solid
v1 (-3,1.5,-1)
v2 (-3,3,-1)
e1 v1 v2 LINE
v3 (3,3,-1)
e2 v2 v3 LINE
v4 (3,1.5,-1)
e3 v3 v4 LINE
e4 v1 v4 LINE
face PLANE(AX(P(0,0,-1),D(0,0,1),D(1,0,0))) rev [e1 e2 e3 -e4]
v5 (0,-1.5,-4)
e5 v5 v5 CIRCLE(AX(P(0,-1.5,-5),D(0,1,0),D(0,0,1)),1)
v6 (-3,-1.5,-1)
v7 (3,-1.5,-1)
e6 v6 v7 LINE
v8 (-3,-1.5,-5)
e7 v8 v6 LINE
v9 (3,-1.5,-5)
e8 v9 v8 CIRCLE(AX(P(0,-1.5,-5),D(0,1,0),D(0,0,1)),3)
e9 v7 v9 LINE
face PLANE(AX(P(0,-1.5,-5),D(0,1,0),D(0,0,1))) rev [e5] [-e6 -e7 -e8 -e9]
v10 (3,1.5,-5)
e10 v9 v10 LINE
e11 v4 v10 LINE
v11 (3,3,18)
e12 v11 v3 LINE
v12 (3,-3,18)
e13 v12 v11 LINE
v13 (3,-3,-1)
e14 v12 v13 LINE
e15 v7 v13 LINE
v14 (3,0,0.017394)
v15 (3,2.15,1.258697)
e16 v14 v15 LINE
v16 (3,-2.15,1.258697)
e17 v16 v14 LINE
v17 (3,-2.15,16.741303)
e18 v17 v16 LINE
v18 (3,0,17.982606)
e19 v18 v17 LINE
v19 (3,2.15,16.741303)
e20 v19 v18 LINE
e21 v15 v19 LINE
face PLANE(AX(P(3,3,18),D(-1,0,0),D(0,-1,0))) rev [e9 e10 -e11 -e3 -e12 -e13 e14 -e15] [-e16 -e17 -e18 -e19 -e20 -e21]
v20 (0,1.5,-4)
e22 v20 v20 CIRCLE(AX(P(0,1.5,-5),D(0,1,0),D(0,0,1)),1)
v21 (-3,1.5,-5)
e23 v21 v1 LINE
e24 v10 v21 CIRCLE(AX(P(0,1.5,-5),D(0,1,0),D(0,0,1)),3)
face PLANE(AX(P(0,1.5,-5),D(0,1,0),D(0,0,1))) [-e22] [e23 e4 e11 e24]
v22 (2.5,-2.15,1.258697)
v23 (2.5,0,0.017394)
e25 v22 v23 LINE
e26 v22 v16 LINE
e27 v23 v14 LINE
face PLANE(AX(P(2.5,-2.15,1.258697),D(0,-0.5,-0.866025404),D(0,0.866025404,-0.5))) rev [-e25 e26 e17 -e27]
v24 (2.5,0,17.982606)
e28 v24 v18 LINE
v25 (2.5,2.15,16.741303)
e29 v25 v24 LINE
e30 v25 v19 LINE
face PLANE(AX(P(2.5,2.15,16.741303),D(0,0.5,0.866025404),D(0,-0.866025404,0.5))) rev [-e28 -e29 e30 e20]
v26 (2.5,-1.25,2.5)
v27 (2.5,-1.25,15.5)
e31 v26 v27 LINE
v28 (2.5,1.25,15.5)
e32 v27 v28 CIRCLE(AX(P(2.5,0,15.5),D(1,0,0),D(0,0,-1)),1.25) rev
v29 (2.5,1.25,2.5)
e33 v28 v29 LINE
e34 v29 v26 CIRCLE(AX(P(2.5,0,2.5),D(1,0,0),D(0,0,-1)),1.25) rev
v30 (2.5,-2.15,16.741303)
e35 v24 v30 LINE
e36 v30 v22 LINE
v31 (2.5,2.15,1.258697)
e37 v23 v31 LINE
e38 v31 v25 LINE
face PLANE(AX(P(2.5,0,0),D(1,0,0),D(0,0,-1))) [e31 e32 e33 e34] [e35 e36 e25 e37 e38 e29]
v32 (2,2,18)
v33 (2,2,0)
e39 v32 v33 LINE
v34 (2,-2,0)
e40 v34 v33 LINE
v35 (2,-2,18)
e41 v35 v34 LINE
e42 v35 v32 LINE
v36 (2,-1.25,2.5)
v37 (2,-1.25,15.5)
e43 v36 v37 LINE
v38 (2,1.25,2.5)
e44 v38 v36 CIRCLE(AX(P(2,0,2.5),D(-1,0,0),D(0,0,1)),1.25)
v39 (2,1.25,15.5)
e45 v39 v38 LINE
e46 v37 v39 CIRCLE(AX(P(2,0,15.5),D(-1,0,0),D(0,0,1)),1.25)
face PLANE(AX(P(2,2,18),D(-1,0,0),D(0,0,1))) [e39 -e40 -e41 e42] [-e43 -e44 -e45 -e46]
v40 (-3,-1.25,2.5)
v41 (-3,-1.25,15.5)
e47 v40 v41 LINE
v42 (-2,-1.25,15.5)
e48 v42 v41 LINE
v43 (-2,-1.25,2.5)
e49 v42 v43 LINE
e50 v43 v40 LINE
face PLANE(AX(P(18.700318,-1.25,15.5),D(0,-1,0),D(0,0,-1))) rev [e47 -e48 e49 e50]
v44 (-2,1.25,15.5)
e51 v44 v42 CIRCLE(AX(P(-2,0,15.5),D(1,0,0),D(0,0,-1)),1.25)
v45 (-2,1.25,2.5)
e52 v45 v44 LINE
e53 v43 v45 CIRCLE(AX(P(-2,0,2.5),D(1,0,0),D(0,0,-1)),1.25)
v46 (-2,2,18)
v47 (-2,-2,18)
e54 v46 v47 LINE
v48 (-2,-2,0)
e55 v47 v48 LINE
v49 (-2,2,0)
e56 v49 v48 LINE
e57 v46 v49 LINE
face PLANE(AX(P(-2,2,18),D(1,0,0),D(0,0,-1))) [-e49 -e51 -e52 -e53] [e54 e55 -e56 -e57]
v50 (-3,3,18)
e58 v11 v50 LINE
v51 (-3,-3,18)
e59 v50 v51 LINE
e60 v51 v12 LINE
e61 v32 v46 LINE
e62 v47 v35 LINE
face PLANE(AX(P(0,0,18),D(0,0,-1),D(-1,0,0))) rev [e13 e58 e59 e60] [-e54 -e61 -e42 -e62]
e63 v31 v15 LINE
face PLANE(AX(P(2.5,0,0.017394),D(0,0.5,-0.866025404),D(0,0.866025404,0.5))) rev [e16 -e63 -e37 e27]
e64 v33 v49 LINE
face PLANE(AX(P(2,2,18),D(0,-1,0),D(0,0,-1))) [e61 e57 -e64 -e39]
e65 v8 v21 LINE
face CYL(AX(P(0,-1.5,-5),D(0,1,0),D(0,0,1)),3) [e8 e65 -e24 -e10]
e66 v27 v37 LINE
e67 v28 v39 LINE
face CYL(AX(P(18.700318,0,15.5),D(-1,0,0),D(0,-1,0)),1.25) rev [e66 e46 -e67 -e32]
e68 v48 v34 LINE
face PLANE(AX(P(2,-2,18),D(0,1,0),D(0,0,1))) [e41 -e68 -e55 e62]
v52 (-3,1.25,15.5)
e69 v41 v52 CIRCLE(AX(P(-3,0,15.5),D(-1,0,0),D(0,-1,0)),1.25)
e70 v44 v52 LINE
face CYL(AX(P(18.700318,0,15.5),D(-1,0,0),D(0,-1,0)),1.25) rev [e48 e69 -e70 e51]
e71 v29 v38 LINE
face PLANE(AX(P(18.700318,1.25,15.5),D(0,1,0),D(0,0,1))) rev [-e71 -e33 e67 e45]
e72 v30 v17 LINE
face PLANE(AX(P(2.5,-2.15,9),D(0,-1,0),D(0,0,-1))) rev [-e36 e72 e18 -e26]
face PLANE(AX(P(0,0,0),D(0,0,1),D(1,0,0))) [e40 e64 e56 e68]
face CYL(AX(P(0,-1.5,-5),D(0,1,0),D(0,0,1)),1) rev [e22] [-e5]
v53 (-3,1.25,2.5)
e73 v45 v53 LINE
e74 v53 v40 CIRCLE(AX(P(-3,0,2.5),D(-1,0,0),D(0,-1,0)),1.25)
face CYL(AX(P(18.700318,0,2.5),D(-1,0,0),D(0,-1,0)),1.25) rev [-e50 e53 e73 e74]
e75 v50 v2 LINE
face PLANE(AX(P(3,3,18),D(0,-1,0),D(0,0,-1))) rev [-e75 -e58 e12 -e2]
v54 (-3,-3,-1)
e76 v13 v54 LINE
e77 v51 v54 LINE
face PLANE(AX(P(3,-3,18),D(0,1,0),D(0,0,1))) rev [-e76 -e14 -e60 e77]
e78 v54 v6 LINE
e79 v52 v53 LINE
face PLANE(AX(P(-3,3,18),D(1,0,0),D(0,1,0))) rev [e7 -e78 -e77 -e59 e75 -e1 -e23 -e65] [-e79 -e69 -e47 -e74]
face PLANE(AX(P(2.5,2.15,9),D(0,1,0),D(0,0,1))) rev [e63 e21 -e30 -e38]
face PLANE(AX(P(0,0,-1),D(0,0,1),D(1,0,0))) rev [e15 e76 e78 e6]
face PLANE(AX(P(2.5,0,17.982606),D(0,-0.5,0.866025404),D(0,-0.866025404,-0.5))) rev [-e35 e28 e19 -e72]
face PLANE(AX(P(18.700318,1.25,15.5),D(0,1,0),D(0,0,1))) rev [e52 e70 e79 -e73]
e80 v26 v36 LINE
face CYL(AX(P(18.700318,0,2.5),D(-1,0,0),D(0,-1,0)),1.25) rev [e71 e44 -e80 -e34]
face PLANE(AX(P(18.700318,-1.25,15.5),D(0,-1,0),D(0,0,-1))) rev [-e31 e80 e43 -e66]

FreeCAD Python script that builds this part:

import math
import FreeCAD as App
import Part
import Sketcher
Q = App.Units.Quantity

doc = App.newDocument("Part")
body = doc.addObject("PartDesign::Body", "Body")

sketch1 = doc.addObject("Sketcher::SketchObject", "Sketch")
body.addObject(sketch1)
sketch1.AttachmentSupport = (doc.XY_Plane, [""])
sketch1.MapMode = "FlatFace"
sketch1.addGeometry([
    Part.LineSegment(App.Vector(-3, 3, 0), App.Vector(-3, -3, 0)),
    Part.LineSegment(App.Vector(-3, -3, 0), App.Vector(3, -3, 0)),
    Part.LineSegment(App.Vector(3, -3, 0), App.Vector(3, 3, 0)),
    Part.LineSegment(App.Vector(3, 3, 0), App.Vector(-3, 3, 0)),
    Part.LineSegment(App.Vector(2, -2, 0), App.Vector(-2, -2, 0)),
    Part.LineSegment(App.Vector(-2, -2, 0), App.Vector(-2, 2, 0)),
    Part.LineSegment(App.Vector(-2, 2, 0), App.Vector(2, 2, 0)),
    Part.LineSegment(App.Vector(2, 2, 0), App.Vector(2, -2, 0)),
], False)
sketch1.addConstraint([
    Sketcher.Constraint("Coincident", 0, 2, 1, 1),
    Sketcher.Constraint("Coincident", 1, 2, 2, 1),
    Sketcher.Constraint("Coincident", 2, 2, 3, 1),
    Sketcher.Constraint("Coincident", 3, 2, 0, 1),
    Sketcher.Constraint("Coincident", 4, 2, 5, 1),
    Sketcher.Constraint("Coincident", 5, 2, 6, 1),
    Sketcher.Constraint("Coincident", 6, 2, 7, 1),
    Sketcher.Constraint("Coincident", 7, 2, 4, 1),
    Sketcher.Constraint("Vertical", 0),
    Sketcher.Constraint("Horizontal", 1),
    Sketcher.Constraint("Vertical", 2),
    Sketcher.Constraint("Horizontal", 3),
    Sketcher.Constraint("Horizontal", 4),
    Sketcher.Constraint("Vertical", 5),
    Sketcher.Constraint("Horizontal", 6),
    Sketcher.Constraint("Vertical", 7),
    Sketcher.Constraint("Symmetric", 0, 2, 2, 2, -1, 1),
    Sketcher.Constraint("Symmetric", 4, 2, 6, 2, -1, 1),
    Sketcher.Constraint("Equal", 3, 0),
    Sketcher.Constraint("Equal", 6, 5),
    Sketcher.Constraint("DistanceX", 1, 1, 1, 2, Q("6 mm")),
    Sketcher.Constraint("DistanceX", 4, 2, 4, 1, Q("4 mm")),
])
pad1 = doc.addObject("PartDesign::Pad", "Pad")
body.addObject(pad1)
pad1.Profile = sketch1
pad1.Length = 18

sketch2 = doc.addObject("Sketcher::SketchObject", "Sketch001")
body.addObject(sketch2)
sketch2.AttachmentSupport = (doc.XY_Plane, [""])
sketch2.MapMode = "FlatFace"
sketch2.addGeometry([
    Part.LineSegment(App.Vector(3, 3, 0), App.Vector(3, -3, 0)),
    Part.LineSegment(App.Vector(3, -3, 0), App.Vector(-3, -3, 0)),
    Part.LineSegment(App.Vector(-3, -3, 0), App.Vector(-3, 3, 0)),
    Part.LineSegment(App.Vector(-3, 3, 0), App.Vector(3, 3, 0)),
], False)
sketch2.addConstraint([
    Sketcher.Constraint("Coincident", 0, 2, 1, 1),
    Sketcher.Constraint("Coincident", 1, 2, 2, 1),
    Sketcher.Constraint("Coincident", 2, 2, 3, 1),
    Sketcher.Constraint("Coincident", 3, 2, 0, 1),
    Sketcher.Constraint("Vertical", 0),
    Sketcher.Constraint("Horizontal", 1),
    Sketcher.Constraint("Vertical", 2),
    Sketcher.Constraint("Horizontal", 3),
    Sketcher.Constraint("Symmetric", 0, 2, 2, 2, -1, 1),
    Sketcher.Constraint("Equal", 3, 0),
    Sketcher.Constraint("DistanceX", 1, 2, 1, 1, Q("6 mm")),
])
pad2 = doc.addObject("PartDesign::Pad", "Pad001")
body.addObject(pad2)
pad2.Profile = sketch2
pad2.Length = 1
pad2.Reversed = True

sketch3 = doc.addObject("Sketcher::SketchObject", "Sketch002")
body.addObject(sketch3)
sketch3.AttachmentSupport = (doc.XZ_Plane, [""])
sketch3.MapMode = "FlatFace"
sketch3.addGeometry([
    Part.LineSegment(App.Vector(3, -1, 0), App.Vector(3, -5, 0)),
    Part.ArcOfCircle(Part.Circle(App.Vector(0, -5, 0), App.Vector(0, 0, 1), 3), math.radians(180), math.radians(360)),
    Part.LineSegment(App.Vector(-3, -5, 0), App.Vector(-3, -1, 0)),
    Part.LineSegment(App.Vector(-3, -1, 0), App.Vector(3, -1, 0)),
    Part.Circle(App.Vector(0, -5, 0), App.Vector(0, 0, 1), 1),
], False)
sketch3.addConstraint([
    Sketcher.Constraint("Tangent", 0, 2, 1, 2),
    Sketcher.Constraint("Tangent", 1, 1, 2, 1),
    Sketcher.Constraint("Coincident", 2, 2, 3, 1),
    Sketcher.Constraint("Coincident", 3, 2, 0, 1),
    Sketcher.Constraint("Vertical", 0),
    Sketcher.Constraint("Vertical", 2),
    Sketcher.Constraint("Horizontal", 3),
    Sketcher.Constraint("Coincident", 4, 3, 1, 3),
    Sketcher.Constraint("PointOnObject", 1, 3, -2),
    Sketcher.Constraint("Diameter", 4, Q("2 mm")),
    Sketcher.Constraint("Radius", 1, Q("3 mm")),
    Sketcher.Constraint("DistanceY", 0, 2, 0, 1, Q("4 mm")),
    Sketcher.Constraint("DistanceY", 1, 3, -1, 1, Q("5 mm")),
])
pad3 = doc.addObject("PartDesign::Pad", "Pad002")
body.addObject(pad3)
pad3.Profile = sketch3
pad3.Type = "TwoLengths"
pad3.Length = 1.5
pad3.Length2 = 1.5
pad3.Reversed = True

sketch4 = doc.addObject("Sketcher::SketchObject", "Sketch003")
body.addObject(sketch4)
sketch4.AttachmentSupport = (doc.YZ_Plane, [""])
sketch4.MapMode = "FlatFace"
sketch4.AttachmentOffset = App.Placement(App.Vector(0, 0, -3), App.Rotation())
sketch4.addGeometry([
    Part.LineSegment(App.Vector(1.25, 15.5, 0), App.Vector(1.25, 2.5, 0)),
    Part.ArcOfCircle(Part.Circle(App.Vector(0, 2.5, 0), App.Vector(0, 0, 1), 1.25), math.radians(180), math.radians(360)),
    Part.LineSegment(App.Vector(-1.25, 2.5, 0), App.Vector(-1.25, 15.5, 0)),
    Part.ArcOfCircle(Part.Circle(App.Vector(0, 15.5, 0), App.Vector(0, 0, 1), 1.25), math.radians(0), math.radians(180)),
], False)
sketch4.addConstraint([
    Sketcher.Constraint("Tangent", 0, 2, 1, 2),
    Sketcher.Constraint("Tangent", 1, 1, 2, 1),
    Sketcher.Constraint("Tangent", 2, 2, 3, 2),
    Sketcher.Constraint("Tangent", 3, 1, 0, 1),
    Sketcher.Constraint("Vertical", 0),
    Sketcher.Constraint("Vertical", 2),
    Sketcher.Constraint("PointOnObject", 1, 3, -2),
    Sketcher.Constraint("DistanceY", 0, 2, 0, 1, Q("13 mm")),
    Sketcher.Constraint("Radius", 1, Q("1.25 mm")),
    Sketcher.Constraint("DistanceY", -1, 1, 1, 3, Q("2.5 mm")),
])
pocket1 = doc.addObject("PartDesign::Pocket", "Pocket")
body.addObject(pocket1)
pocket1.Profile = sketch4
pocket1.Length = 6
pocket1.Reversed = True

sketch5 = doc.addObject("Sketcher::SketchObject", "Sketch004")
body.addObject(sketch5)
sketch5.AttachmentSupport = (doc.YZ_Plane, [""])
sketch5.MapMode = "FlatFace"
sketch5.AttachmentOffset = App.Placement(App.Vector(0, 0, 3), App.Rotation())
sketch5.addGeometry([
    Part.LineSegment(App.Vector(2.15, 16.741303, 0), App.Vector(0, 17.982606, 0)),
    Part.LineSegment(App.Vector(0, 17.982606, 0), App.Vector(-2.15, 16.741303, 0)),
    Part.LineSegment(App.Vector(-2.15, 16.741303, 0), App.Vector(-2.15, 1.258697, 0)),
    Part.LineSegment(App.Vector(-2.15, 1.258697, 0), App.Vector(0, 0.017394, 0)),
    Part.LineSegment(App.Vector(0, 0.017394, 0), App.Vector(2.15, 1.258697, 0)),
    Part.LineSegment(App.Vector(2.15, 1.258697, 0), App.Vector(2.15, 16.741303, 0)),
], False)
sketch5.addConstraint([
    Sketcher.Constraint("Coincident", 0, 2, 1, 1),
    Sketcher.Constraint("Coincident", 1, 2, 2, 1),
    Sketcher.Constraint("Coincident", 2, 2, 3, 1),
    Sketcher.Constraint("Coincident", 3, 2, 4, 1),
    Sketcher.Constraint("Coincident", 4, 2, 5, 1),
    Sketcher.Constraint("Coincident", 5, 2, 0, 1),
    Sketcher.Constraint("Vertical", 2),
    Sketcher.Constraint("Vertical", 5),
    Sketcher.Constraint("Symmetric", 2, 2, 4, 2, -2),
    Sketcher.Constraint("PointOnObject", 0, 2, -2),
    Sketcher.Constraint("PointOnObject", 3, 2, -2),
    Sketcher.Constraint("Parallel", 0, 3),
    Sketcher.Constraint("Parallel", 1, 4),
    Sketcher.Constraint("Angle", 0, Q("150 deg")),
    Sketcher.Constraint("DistanceX", 2, 2, 4, 2, Q("4.3 mm")),
    Sketcher.Constraint("DistanceY", 2, 2, 2, 1, Q("15.482606 mm")),
    Sketcher.Constraint("DistanceY", -1, 1, 0, 2, Q("17.982606 mm")),
])
pocket2 = doc.addObject("PartDesign::Pocket", "Pocket001")
body.addObject(pocket2)
pocket2.Profile = sketch5
pocket2.Length = 0.5

doc.recompute()
